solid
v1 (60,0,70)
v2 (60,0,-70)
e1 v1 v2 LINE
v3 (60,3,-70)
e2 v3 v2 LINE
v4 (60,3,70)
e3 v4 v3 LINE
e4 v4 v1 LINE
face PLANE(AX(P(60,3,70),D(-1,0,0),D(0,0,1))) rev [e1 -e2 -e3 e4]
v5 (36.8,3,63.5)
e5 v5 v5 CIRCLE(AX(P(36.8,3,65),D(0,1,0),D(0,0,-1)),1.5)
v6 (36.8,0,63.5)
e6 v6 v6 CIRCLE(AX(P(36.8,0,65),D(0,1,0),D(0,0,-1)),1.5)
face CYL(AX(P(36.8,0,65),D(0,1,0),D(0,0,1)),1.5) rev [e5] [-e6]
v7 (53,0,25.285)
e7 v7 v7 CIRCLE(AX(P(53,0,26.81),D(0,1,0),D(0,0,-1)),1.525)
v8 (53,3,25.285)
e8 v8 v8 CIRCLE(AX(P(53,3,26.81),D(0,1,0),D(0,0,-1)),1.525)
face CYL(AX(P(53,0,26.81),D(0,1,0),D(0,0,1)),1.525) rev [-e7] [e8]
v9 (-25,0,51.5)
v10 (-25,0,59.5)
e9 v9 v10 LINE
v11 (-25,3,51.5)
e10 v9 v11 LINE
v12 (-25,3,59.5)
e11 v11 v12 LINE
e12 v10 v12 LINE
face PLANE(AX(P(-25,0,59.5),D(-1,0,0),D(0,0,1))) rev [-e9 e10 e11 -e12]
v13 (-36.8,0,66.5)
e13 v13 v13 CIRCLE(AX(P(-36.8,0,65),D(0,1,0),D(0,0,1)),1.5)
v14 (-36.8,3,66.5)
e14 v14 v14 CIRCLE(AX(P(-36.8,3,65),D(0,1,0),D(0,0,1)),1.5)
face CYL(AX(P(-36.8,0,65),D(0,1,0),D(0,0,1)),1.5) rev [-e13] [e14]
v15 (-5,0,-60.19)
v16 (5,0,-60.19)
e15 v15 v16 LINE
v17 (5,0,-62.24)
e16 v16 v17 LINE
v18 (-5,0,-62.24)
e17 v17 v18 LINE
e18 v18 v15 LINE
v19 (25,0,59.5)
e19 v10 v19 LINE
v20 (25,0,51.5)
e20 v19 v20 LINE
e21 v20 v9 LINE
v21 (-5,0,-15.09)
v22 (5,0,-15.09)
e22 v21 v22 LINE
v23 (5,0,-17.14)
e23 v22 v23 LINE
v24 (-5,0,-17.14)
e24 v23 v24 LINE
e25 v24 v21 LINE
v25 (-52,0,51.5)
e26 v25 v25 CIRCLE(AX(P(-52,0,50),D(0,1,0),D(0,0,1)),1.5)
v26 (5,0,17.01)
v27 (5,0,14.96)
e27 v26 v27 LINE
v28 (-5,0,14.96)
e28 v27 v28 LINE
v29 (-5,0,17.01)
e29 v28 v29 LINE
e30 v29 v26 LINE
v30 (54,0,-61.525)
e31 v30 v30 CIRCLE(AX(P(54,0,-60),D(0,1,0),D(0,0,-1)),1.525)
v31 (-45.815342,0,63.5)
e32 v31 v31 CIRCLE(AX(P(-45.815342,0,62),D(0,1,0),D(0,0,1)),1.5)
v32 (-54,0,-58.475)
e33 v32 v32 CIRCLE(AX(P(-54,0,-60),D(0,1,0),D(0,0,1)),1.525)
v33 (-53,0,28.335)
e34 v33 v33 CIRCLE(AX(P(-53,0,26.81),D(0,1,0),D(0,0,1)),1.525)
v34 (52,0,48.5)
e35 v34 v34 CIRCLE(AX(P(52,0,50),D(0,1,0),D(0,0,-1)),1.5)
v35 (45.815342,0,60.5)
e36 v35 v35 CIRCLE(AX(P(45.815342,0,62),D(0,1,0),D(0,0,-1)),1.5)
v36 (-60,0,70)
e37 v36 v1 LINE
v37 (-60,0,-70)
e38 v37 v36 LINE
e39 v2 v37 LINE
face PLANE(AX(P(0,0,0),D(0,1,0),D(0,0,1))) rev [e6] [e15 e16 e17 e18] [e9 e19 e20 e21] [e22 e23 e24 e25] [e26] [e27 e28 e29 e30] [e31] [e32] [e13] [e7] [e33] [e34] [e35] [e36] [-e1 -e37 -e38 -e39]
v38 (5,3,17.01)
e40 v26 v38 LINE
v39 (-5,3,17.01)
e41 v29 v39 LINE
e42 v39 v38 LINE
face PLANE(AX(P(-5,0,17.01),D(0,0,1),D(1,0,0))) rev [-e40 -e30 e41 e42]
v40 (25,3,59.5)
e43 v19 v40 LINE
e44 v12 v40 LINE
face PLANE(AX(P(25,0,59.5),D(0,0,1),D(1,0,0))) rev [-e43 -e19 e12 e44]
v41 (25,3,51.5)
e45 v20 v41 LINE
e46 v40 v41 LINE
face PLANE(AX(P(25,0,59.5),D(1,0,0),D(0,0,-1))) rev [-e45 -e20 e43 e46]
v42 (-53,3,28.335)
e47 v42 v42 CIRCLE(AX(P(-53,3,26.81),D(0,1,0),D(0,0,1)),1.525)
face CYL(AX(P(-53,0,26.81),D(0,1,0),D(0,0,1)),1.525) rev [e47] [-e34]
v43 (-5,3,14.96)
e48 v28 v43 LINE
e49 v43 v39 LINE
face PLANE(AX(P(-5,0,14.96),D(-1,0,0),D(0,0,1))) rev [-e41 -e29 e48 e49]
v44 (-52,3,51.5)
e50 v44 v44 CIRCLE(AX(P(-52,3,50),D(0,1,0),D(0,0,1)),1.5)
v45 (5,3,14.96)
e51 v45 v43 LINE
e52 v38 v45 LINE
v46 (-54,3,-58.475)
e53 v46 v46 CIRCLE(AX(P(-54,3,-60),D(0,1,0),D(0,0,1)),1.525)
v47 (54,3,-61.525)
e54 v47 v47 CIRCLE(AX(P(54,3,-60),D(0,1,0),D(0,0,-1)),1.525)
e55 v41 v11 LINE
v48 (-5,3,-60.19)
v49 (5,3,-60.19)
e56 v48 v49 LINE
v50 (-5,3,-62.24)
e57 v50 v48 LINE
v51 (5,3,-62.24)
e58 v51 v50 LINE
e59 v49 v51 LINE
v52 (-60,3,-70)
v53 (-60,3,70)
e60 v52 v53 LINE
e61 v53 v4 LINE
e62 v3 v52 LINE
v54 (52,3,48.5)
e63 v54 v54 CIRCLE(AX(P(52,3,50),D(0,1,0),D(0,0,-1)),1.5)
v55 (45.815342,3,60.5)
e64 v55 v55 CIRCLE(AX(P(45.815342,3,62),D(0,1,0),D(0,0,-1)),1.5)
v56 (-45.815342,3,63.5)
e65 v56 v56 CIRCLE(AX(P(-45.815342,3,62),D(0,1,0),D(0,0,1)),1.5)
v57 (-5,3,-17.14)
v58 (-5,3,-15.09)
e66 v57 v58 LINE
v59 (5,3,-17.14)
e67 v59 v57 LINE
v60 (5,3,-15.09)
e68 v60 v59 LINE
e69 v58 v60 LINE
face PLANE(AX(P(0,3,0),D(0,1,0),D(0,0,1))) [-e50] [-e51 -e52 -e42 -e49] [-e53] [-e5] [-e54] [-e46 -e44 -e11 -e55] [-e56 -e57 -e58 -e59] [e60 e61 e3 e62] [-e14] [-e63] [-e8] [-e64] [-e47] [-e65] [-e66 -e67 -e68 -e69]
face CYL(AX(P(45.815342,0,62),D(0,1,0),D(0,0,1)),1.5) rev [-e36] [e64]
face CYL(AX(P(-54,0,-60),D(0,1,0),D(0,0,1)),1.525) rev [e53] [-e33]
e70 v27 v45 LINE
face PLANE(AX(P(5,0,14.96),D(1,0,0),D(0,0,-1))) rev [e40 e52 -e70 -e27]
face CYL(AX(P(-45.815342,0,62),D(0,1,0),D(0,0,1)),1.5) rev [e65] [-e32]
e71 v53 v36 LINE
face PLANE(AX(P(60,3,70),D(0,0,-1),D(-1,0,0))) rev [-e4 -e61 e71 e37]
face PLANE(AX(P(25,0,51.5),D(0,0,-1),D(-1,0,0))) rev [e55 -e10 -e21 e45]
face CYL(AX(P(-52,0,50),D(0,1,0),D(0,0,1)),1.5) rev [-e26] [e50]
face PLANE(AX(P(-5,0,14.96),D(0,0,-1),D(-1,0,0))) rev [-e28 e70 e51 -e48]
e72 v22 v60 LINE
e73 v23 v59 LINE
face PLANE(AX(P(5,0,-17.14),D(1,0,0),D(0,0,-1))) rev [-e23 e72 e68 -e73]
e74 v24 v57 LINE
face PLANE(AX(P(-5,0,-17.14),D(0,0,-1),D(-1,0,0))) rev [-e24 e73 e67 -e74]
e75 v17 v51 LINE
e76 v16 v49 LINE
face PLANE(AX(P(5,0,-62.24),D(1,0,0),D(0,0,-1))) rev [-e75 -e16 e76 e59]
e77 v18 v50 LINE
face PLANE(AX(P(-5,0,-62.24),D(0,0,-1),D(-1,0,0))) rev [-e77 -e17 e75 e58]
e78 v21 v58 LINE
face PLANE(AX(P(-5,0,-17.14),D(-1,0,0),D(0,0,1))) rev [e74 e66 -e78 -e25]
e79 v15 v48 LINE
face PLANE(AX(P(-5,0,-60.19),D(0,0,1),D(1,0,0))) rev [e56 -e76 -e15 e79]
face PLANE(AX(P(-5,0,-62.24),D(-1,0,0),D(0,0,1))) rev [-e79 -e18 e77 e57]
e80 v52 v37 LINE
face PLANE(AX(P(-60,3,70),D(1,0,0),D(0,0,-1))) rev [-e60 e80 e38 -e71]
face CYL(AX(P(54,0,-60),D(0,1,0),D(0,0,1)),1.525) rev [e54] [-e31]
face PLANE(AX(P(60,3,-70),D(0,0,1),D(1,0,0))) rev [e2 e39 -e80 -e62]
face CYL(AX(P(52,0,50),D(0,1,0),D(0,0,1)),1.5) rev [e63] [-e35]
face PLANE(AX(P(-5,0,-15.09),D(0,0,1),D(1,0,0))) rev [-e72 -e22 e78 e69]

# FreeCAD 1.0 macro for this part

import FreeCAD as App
import Part
import Sketcher
from FreeCAD import Vector

doc = App.newDocument("Part")
body = doc.addObject("PartDesign::Body", "Body")

sketch1 = body.newObject("Sketcher::SketchObject", "Sketch")
sketch1.AttachmentSupport = (doc.getObject("XZ_Plane"), [""])
sketch1.MapMode = "FlatFace"
sketch1.addGeometry(Part.LineSegment(Vector(-60, -70, 0), Vector(-60, 70, 0)), False)
sketch1.addGeometry(Part.LineSegment(Vector(-60, 70, 0), Vector(60, 70, 0)), False)
sketch1.addGeometry(Part.LineSegment(Vector(60, 70, 0), Vector(60, -70, 0)), False)
sketch1.addGeometry(Part.LineSegment(Vector(60, -70, 0), Vector(-60, -70, 0)), False)
sketch1.addConstraint(Sketcher.Constraint("Coincident", 0, 2, 1, 1))
sketch1.addConstraint(Sketcher.Constraint("Coincident", 1, 2, 2, 1))
sketch1.addConstraint(Sketcher.Constraint("Coincident", 2, 2, 3, 1))
sketch1.addConstraint(Sketcher.Constraint("Coincident", 3, 2, 0, 1))
sketch1.addConstraint(Sketcher.Constraint("Vertical", 0))
sketch1.addConstraint(Sketcher.Constraint("Horizontal", 1))
sketch1.addConstraint(Sketcher.Constraint("Vertical", 2))
sketch1.addConstraint(Sketcher.Constraint("Horizontal", 3))
sketch1.addConstraint(Sketcher.Constraint("Symmetric", 0, 2, 2, 2, -1, 1))
sketch1.addConstraint(Sketcher.Constraint("DistanceX", 1, 1, 1, 2, 120.0))
sketch1.addConstraint(Sketcher.Constraint("DistanceY", 0, 1, 0, 2, 140.0))
pad1 = body.newObject("PartDesign::Pad", "Pad")
pad1.Profile = sketch1
pad1.Length = 3
pad1.Reversed = True

sketch2 = body.newObject("Sketcher::SketchObject", "Sketch001")
sketch2.AttachmentSupport = (doc.getObject("XZ_Plane"), [""])
sketch2.MapMode = "FlatFace"
sketch2.AttachmentOffset = App.Placement(Vector(0, 0, -3), App.Rotation())
sketch2.addGeometry(Part.Circle(Vector(-53, 26.81, 0), Vector(0, 0, 1), 1.525), False)
sketch2.addGeometry(Part.Circle(Vector(-54, -60, 0), Vector(0, 0, 1), 1.525), False)
sketch2.addGeometry(Part.Circle(Vector(53, 26.81, 0), Vector(0, 0, 1), 1.525), False)
sketch2.addGeometry(Part.Circle(Vector(54, -60, 0), Vector(0, 0, 1), 1.525), False)
sketch2.addConstraint(Sketcher.Constraint("Equal", 0, 1))
sketch2.addConstraint(Sketcher.Constraint("Equal", 1, 2))
sketch2.addConstraint(Sketcher.Constraint("Equal", 2, 3))
sketch2.addConstraint(Sketcher.Constraint("Symmetric", 0, 3, 2, 3, -2))
sketch2.addConstraint(Sketcher.Constraint("Symmetric", 1, 3, 3, 3, -2))
sketch2.addConstraint(Sketcher.Constraint("Diameter", 0, 3.05))
sketch2.addConstraint(Sketcher.Constraint("DistanceX", 0, 3, -1, 1, 53.0))
sketch2.addConstraint(Sketcher.Constraint("DistanceX", 1, 3, -1, 1, 54.0))
sketch2.addConstraint(Sketcher.Constraint("DistanceY", 1, 3, -1, 1, 60.0))
sketch2.addConstraint(Sketcher.Constraint("DistanceY", -1, 1, 0, 3, 26.81))
pocket1 = body.newObject("PartDesign::Pocket", "Pocket")
pocket1.Profile = sketch2
pocket1.Type = "ThroughAll"
pocket1.Reversed = True

sketch3 = body.newObject("Sketcher::SketchObject", "Sketch002")
sketch3.AttachmentSupport = (doc.getObject("XZ_Plane"), [""])
sketch3.MapMode = "FlatFace"
sketch3.AttachmentOffset = App.Placement(Vector(0, 0, -3), App.Rotation())
sketch3.addGeometry(Part.LineSegment(Vector(-5, -17.14, 0), Vector(-5, -15.09, 0)), False)
sketch3.addGeometry(Part.LineSegment(Vector(-5, -15.09, 0), Vector(5, -15.09, 0)), False)
sketch3.addGeometry(Part.LineSegment(Vector(5, -15.09, 0), Vector(5, -17.14, 0)), False)
sketch3.addGeometry(Part.LineSegment(Vector(5, -17.14, 0), Vector(-5, -17.14, 0)), False)
sketch3.addGeometry(Part.LineSegment(Vector(-5, 14.96, 0), Vector(-5, 17.01, 0)), False)
sketch3.addGeometry(Part.LineSegment(Vector(-5, 17.01, 0), Vector(5, 17.01, 0)), False)
sketch3.addGeometry(Part.LineSegment(Vector(5, 17.01, 0), Vector(5, 14.96, 0)), False)
sketch3.addGeometry(Part.LineSegment(Vector(5, 14.96, 0), Vector(-5, 14.96, 0)), False)
sketch3.addGeometry(Part.LineSegment(Vector(-5, -62.24, 0), Vector(-5, -60.19, 0)), False)
sketch3.addGeometry(Part.LineSegment(Vector(-5, -60.19, 0), Vector(5, -60.19, 0)), False)
sketch3.addGeometry(Part.LineSegment(Vector(5, -60.19, 0), Vector(5, -62.24, 0)), False)
sketch3.addGeometry(Part.LineSegment(Vector(5, -62.24, 0), Vector(-5, -62.24, 0)), False)
sketch3.addConstraint(Sketcher.Constraint("Coincident", 0, 2, 1, 1))
sketch3.addConstraint(Sketcher.Constraint("Coincident", 1, 2, 2, 1))
sketch3.addConstraint(Sketcher.Constraint("Coincident", 2, 2, 3, 1))
sketch3.addConstraint(Sketcher.Constraint("Coincident", 3, 2, 0, 1))
sketch3.addConstraint(Sketcher.Constraint("Coincident", 4, 2, 5, 1))
sketch3.addConstraint(Sketcher.Constraint("Coincident", 5, 2, 6, 1))
sketch3.addConstraint(Sketcher.Constraint("Coincident", 6, 2, 7, 1))
sketch3.addConstraint(Sketcher.Constraint("Coincident", 7, 2, 4, 1))
sketch3.addConstraint(Sketcher.Constraint("Coincident", 8, 2, 9, 1))
sketch3.addConstraint(Sketcher.Constraint("Coincident", 9, 2, 10, 1))
sketch3.addConstraint(Sketcher.Constraint("Coincident", 10, 2, 11, 1))
sketch3.addConstraint(Sketcher.Constraint("Coincident", 11, 2, 8, 1))
sketch3.addConstraint(Sketcher.Constraint("Vertical", 0))
sketch3.addConstraint(Sketcher.Constraint("Horizontal", 1))
sketch3.addConstraint(Sketcher.Constraint("Vertical", 2))
sketch3.addConstraint(Sketcher.Constraint("Horizontal", 3))
sketch3.addConstraint(Sketcher.Constraint("Vertical", 4))
sketch3.addConstraint(Sketcher.Constraint("Horizontal", 5))
sketch3.addConstraint(Sketcher.Constraint("Vertical", 6))
sketch3.addConstraint(Sketcher.Constraint("Horizontal", 7))
sketch3.addConstraint(Sketcher.Constraint("Vertical", 8))
sketch3.addConstraint(Sketcher.Constraint("Horizontal", 9))
sketch3.addConstraint(Sketcher.Constraint("Vertical", 10))
sketch3.addConstraint(Sketcher.Constraint("Horizontal", 11))
sketch3.addConstraint(Sketcher.Constraint("Vertical", 3, 2, 4, 2))
sketch3.addConstraint(Sketcher.Constraint("Vertical", 2, 2, 5, 2))
sketch3.addConstraint(Sketcher.Constraint("Vertical", 7, 2, 8, 2))
sketch3.addConstraint(Sketcher.Constraint("Vertical", 6, 2, 9, 2))
sketch3.addConstraint(Sketcher.Constraint("Equal", 2, 4))
sketch3.addConstraint(Sketcher.Constraint("Equal", 6, 8))
sketch3.addConstraint(Sketcher.Constraint("DistanceX", 1, 1, 1, 2, 10.0))
sketch3.addConstraint(Sketcher.Constraint("DistanceX", 0, 2, -1, 1, 5.0))
sketch3.addConstraint(Sketcher.Constraint("DistanceY", 0, 1, 0, 2, 2.05))
sketch3.addConstraint(Sketcher.Constraint("DistanceY", 0, 2, 4, 2, 32.1))
sketch3.addConstraint(Sketcher.Constraint("DistanceY", 8, 2, 0, 2, 45.1))
sketch3.addConstraint(Sketcher.Constraint("DistanceY", 0, 2, -1, 1, 15.09))
pocket2 = body.newObject("PartDesign::Pocket", "Pocket001")
pocket2.Profile = sketch3
pocket2.Type = "ThroughAll"
pocket2.Reversed = True

sketch4 = body.newObject("Sketcher::SketchObject", "Sketch003")
sketch4.AttachmentSupport = (doc.getObject("XZ_Plane"), [""])
sketch4.MapMode = "FlatFace"
sketch4.AttachmentOffset = App.Placement(Vector(0, 0, -3), App.Rotation())
sketch4.addGeometry(Part.Circle(Vector(-52, 50, 0), Vector(0, 0, 1), 1.5), False)
sketch4.addGeometry(Part.Circle(Vector(-45.815342, 62, 0), Vector(0, 0, 1), 1.5), False)
sketch4.addGeometry(Part.Circle(Vector(45.815342, 62, 0), Vector(0, 0, 1), 1.5), False)
sketch4.addGeometry(Part.Circle(Vector(52, 50, 0), Vector(0, 0, 1), 1.5), False)
sketch4.addConstraint(Sketcher.Constraint("Equal", 0, 1))
sketch4.addConstraint(Sketcher.Constraint("Equal", 1, 2))
sketch4.addConstraint(Sketcher.Constraint("Equal", 2, 3))
sketch4.addConstraint(Sketcher.Constraint("Symmetric", 1, 3, 2, 3, -2))
sketch4.addConstraint(Sketcher.Constraint("Symmetric", 0, 3, 3, 3, -2))
sketch4.addConstraint(Sketcher.Constraint("Diameter", 0, 3.0))
sketch4.addConstraint(Sketcher.Constraint("DistanceX", 0, 3, -1, 1, 52.0))
sketch4.addConstraint(Sketcher.Constraint("DistanceY", -1, 1, 0, 3, 50.0))
sketch4.addConstraint(Sketcher.Constraint("DistanceY", -1, 1, 1, 3, 62.0))
sketch4.addConstraint(Sketcher.Constraint("DistanceX", 1, 3, -1, 1, 45.815342))
pocket3 = body.newObject("PartDesign::Pocket", "Pocket002")
pocket3.Profile = sketch4
pocket3.Length = 3
pocket3.Reversed = True

sketch5 = body.newObject("Sketcher::SketchObject", "Sketch004")
sketch5.AttachmentSupport = (doc.getObject("XZ_Plane"), [""])
sketch5.MapMode = "FlatFace"
sketch5.AttachmentOffset = App.Placement(Vector(0, 0, -3), App.Rotation())
sketch5.addGeometry(Part.Circle(Vector(-36.8, 65, 0), Vector(0, 0, 1), 1.5), False)
sketch5.addGeometry(Part.Circle(Vector(36.8, 65, 0), Vector(0, 0, 1), 1.5), False)
sketch5.addGeometry(Part.LineSegment(Vector(-25, 51.5, 0), Vector(-25, 59.5, 0)), False)
sketch5.addGeometry(Part.LineSegment(Vector(-25, 59.5, 0), Vector(25, 59.5, 0)), False)
sketch5.addGeometry(Part.LineSegment(Vector(25, 59.5, 0), Vector(25, 51.5, 0)), False)
sketch5.addGeometry(Part.LineSegment(Vector(25, 51.5, 0), Vector(-25, 51.5, 0)), False)
sketch5.addConstraint(Sketcher.Constraint("Coincident", 2, 2, 3, 1))
sketch5.addConstraint(Sketcher.Constraint("Coincident", 3, 2, 4, 1))
sketch5.addConstraint(Sketcher.Constraint("Coincident", 4, 2, 5, 1))
sketch5.addConstraint(Sketcher.Constraint("Coincident", 5, 2, 2, 1))
sketch5.addConstraint(Sketcher.Constraint("Vertical", 2))
sketch5.addConstraint(Sketcher.Constraint("Horizontal", 3))
sketch5.addConstraint(Sketcher.Constraint("Vertical", 4))
sketch5.addConstraint(Sketcher.Constraint("Horizontal", 5))
sketch5.addConstraint(Sketcher.Constraint("Equal", 0, 1))
sketch5.addConstraint(Sketcher.Constraint("Symmetric", 0, 3, 1, 3, -2))
sketch5.addConstraint(Sketcher.Constraint("Diameter", 0, 3.0))
sketch5.addConstraint(Sketcher.Constraint("DistanceX", 3, 1, 3, 2, 50.0))
sketch5.addConstraint(Sketcher.Constraint("DistanceY", 2, 1, 2, 2, 8.0))
sketch5.addConstraint(Sketcher.Constraint("DistanceY", -1, 1, 0, 3, 65.0))
sketch5.addConstraint(Sketcher.Constraint("DistanceX", 2, 2, -1, 1, 25.0))
sketch5.addConstraint(Sketcher.Constraint("DistanceX", 0, 3, -1, 1, 36.8))
sketch5.addConstraint(Sketcher.Constraint("DistanceY", -1, 1, 2, 2, 59.5))
pocket4 = body.newObject("PartDesign::Pocket", "Pocket003")
pocket4.Profile = sketch5
pocket4.Length = 3
pocket4.Reversed = True

doc.recompute()
